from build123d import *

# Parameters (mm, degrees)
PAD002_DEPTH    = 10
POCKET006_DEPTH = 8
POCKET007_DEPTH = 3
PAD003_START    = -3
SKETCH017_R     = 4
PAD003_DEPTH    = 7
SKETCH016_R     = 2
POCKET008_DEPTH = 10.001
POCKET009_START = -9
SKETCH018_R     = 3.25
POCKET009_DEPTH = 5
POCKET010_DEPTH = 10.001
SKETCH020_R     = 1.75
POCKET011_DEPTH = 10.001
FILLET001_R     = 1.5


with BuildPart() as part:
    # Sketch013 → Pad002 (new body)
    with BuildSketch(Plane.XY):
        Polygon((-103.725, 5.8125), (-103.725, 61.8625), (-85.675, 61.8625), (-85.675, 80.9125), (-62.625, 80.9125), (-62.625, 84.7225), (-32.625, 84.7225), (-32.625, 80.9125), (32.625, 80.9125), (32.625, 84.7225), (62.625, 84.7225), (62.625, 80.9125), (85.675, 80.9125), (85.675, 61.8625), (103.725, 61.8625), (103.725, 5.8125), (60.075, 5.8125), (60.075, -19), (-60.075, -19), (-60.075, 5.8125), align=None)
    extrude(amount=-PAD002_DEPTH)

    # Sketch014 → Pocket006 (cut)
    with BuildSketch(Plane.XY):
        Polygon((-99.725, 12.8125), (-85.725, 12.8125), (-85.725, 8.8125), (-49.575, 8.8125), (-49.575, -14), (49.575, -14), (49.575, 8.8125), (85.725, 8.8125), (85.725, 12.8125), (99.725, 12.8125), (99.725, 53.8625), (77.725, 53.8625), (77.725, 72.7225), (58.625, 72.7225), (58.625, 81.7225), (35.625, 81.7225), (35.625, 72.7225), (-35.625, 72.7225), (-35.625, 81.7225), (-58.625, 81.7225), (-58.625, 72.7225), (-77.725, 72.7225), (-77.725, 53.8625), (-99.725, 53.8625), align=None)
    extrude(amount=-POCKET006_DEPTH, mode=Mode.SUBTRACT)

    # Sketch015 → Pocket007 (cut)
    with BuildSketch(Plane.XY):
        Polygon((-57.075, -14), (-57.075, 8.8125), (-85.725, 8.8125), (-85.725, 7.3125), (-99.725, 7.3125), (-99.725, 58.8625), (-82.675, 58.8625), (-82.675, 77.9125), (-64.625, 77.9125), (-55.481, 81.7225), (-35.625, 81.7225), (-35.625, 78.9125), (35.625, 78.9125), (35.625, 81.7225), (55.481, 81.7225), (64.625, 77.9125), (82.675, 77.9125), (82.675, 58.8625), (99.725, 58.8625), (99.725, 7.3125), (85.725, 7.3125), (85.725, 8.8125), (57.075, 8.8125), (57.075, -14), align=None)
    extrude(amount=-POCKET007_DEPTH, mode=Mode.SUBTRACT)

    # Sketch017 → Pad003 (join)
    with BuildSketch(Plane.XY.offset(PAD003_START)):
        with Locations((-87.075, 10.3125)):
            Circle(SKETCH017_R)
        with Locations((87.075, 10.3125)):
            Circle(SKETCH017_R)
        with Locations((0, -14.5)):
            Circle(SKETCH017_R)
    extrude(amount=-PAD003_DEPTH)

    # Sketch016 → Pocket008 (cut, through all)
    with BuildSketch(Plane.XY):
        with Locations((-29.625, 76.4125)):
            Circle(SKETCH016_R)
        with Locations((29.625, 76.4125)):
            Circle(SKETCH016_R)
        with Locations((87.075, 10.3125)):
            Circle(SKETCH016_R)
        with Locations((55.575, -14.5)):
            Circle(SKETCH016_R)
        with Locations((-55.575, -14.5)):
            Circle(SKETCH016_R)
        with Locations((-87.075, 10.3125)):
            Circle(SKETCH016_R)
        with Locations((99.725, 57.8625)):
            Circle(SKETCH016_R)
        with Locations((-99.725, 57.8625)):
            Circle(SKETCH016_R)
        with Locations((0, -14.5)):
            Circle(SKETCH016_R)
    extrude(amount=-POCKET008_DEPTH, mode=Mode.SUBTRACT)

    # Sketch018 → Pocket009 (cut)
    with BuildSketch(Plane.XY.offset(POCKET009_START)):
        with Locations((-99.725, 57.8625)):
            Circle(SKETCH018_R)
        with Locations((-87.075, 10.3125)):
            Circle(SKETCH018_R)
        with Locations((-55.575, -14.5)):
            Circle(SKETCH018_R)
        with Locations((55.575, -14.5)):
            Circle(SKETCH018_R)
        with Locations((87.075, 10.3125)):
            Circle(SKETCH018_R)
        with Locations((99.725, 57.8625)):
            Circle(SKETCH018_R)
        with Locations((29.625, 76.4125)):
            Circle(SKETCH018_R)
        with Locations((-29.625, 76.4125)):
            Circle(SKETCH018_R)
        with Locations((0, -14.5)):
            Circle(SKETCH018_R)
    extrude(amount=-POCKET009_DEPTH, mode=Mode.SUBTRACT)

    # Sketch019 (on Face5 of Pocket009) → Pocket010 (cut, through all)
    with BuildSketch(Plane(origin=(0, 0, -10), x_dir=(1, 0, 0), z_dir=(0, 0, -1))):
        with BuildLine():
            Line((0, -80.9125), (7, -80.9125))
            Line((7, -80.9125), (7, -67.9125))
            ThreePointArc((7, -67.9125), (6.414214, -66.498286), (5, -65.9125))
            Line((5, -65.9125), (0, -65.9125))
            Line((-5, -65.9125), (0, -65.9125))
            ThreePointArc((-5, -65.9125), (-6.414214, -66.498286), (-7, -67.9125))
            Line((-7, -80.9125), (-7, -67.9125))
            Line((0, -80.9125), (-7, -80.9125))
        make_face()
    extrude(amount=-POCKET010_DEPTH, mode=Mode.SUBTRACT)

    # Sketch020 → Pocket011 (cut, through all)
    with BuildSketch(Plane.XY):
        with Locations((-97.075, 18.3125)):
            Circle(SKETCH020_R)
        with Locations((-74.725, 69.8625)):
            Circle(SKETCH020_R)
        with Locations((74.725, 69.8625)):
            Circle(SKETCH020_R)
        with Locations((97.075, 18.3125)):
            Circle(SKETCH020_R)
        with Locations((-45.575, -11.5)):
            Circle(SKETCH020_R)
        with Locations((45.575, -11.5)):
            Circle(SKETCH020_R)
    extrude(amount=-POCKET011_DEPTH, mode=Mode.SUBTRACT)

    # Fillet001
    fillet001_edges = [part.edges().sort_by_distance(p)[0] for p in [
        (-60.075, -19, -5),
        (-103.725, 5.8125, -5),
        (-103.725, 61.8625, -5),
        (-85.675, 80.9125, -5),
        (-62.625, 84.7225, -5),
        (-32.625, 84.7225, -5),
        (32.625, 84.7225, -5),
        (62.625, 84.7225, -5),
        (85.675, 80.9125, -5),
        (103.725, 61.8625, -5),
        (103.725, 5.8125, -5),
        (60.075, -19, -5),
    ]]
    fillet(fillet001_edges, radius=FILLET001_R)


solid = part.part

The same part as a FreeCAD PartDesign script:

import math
import FreeCAD as App
import Part
import Sketcher


def edges_at(feature, points):
    """Names of the edges that pass closest to the given points."""
    edges = feature.Shape.Edges
    near = lambda p: min(range(len(edges)), key=lambda i: edges[i].distToShape(Part.Vertex(*p))[0])
    return sorted({f"Edge{near(p) + 1}" for p in points})

doc = App.newDocument("Part")
params = doc.addObject("Spreadsheet::Sheet", "Params")
for row, (alias, value) in enumerate([
    ("sketch1_width", "30 mm"),
    ("sketch1_width2", "43.65 mm"),
    ("sketch1_width3", "120.15 mm"),
    ("sketch1_width4", "18.05 mm"),
    ("sketch1_width5", "23.05 mm"),
    ("pad1_length", "10 mm"),
    ("sketch2_width", "14 mm"),
    ("sketch2_width2", "22 mm"),
    ("sketch2_width3", "23 mm"),
    ("sketch2_height", "4 mm"),
    ("sketch2_height2", "9 mm"),
    ("pocket1_length", "8 mm"),
    ("sketch3_width", "14 mm"),
    ("sketch3_height", "1.5 mm"),
    ("sketch3_width2", "114.15 mm"),
    ("sketch3_width3", "28.65 mm"),
    ("sketch3_width4", "17.05 mm"),
    ("pocket2_length", "3 mm"),
    ("sketch4_diameter", "8 mm"),
    ("pad2_length", "7 mm"),
    ("sketch5_diameter", "4 mm"),
    ("sketch6_diameter", "6.5 mm"),
    ("pocket4_length", "5 mm"),
    ("sketch7_radius", "1.999999 mm"),
    ("sketch7_width", "10 mm"),
    ("sketch7_height", "13 mm"),
    ("sketch8_diameter", "3.5 mm"),
    ("fillet_radius", "1.5 mm"),
], start=1):
    params.set(f"A{row}", alias)
    params.set(f"B{row}", "=" + value)
    params.setAlias(f"B{row}", alias)

body = doc.addObject("PartDesign::Body", "Body")

# Sketch on XY plane
sketch1 = body.newObject("Sketcher::SketchObject", "Sketch")
sketch1.AttachmentSupport = (doc.getObject("XY_Plane"), [""])
sketch1.MapMode = "FlatFace"
sketch1.addGeometry([
    Part.LineSegment(App.Vector(-103.7, 61.9, 0), App.Vector(-103.7, 5.8, 0)),  # 0
    Part.LineSegment(App.Vector(-103.7, 5.8, 0), App.Vector(-60.1, 5.8, 0)),  # 1
    Part.LineSegment(App.Vector(-60.1, 5.8, 0), App.Vector(-60.1, -19, 0)),  # 2
    Part.LineSegment(App.Vector(-60.1, -19, 0), App.Vector(60.1, -19, 0)),  # 3
    Part.LineSegment(App.Vector(60.1, -19, 0), App.Vector(60.1, 5.8, 0)),  # 4
    Part.LineSegment(App.Vector(60.1, 5.8, 0), App.Vector(103.7, 5.8, 0)),  # 5
    Part.LineSegment(App.Vector(103.7, 5.8, 0), App.Vector(103.7, 61.9, 0)),  # 6
    Part.LineSegment(App.Vector(103.7, 61.9, 0), App.Vector(85.7, 61.9, 0)),  # 7
    Part.LineSegment(App.Vector(85.7, 61.9, 0), App.Vector(85.7, 80.9, 0)),  # 8
    Part.LineSegment(App.Vector(85.7, 80.9, 0), App.Vector(62.6, 80.9, 0)),  # 9
    Part.LineSegment(App.Vector(62.6, 80.9, 0), App.Vector(62.6, 84.7, 0)),  # 10
    Part.LineSegment(App.Vector(62.6, 84.7, 0), App.Vector(32.6, 84.7, 0)),  # 11
    Part.LineSegment(App.Vector(32.6, 84.7, 0), App.Vector(32.6, 80.9, 0)),  # 12
    Part.LineSegment(App.Vector(32.6, 80.9, 0), App.Vector(-32.6, 80.9, 0)),  # 13
    Part.LineSegment(App.Vector(-32.6, 80.9, 0), App.Vector(-32.6, 84.7, 0)),  # 14
    Part.LineSegment(App.Vector(-32.6, 84.7, 0), App.Vector(-62.6, 84.7, 0)),  # 15
    Part.LineSegment(App.Vector(-62.6, 84.7, 0), App.Vector(-62.6, 80.9, 0)),  # 16
    Part.LineSegment(App.Vector(-62.6, 80.9, 0), App.Vector(-85.7, 80.9, 0)),  # 17
    Part.LineSegment(App.Vector(-85.7, 80.9, 0), App.Vector(-85.7, 61.9, 0)),  # 18
    Part.LineSegment(App.Vector(-85.7, 61.9, 0), App.Vector(-103.7, 61.9, 0)),  # 19
], False)
sketch1.addConstraint([
    Sketcher.Constraint("Coincident", 0, 2, 1, 1),
    Sketcher.Constraint("Coincident", 1, 2, 2, 1),
    Sketcher.Constraint("Coincident", 2, 2, 3, 1),
    Sketcher.Constraint("Coincident", 3, 2, 4, 1),
    Sketcher.Constraint("Coincident", 4, 2, 5, 1),
    Sketcher.Constraint("Coincident", 5, 2, 6, 1),
    Sketcher.Constraint("Coincident", 6, 2, 7, 1),
    Sketcher.Constraint("Coincident", 7, 2, 8, 1),
    Sketcher.Constraint("Coincident", 8, 2, 9, 1),
    Sketcher.Constraint("Coincident", 9, 2, 10, 1),
    Sketcher.Constraint("Coincident", 10, 2, 11, 1),
    Sketcher.Constraint("Coincident", 11, 2, 12, 1),
    Sketcher.Constraint("Coincident", 12, 2, 13, 1),
    Sketcher.Constraint("Coincident", 13, 2, 14, 1),
    Sketcher.Constraint("Coincident", 14, 2, 15, 1),
    Sketcher.Constraint("Coincident", 15, 2, 16, 1),
    Sketcher.Constraint("Coincident", 16, 2, 17, 1),
    Sketcher.Constraint("Coincident", 17, 2, 18, 1),
    Sketcher.Constraint("Coincident", 18, 2, 19, 1),
    Sketcher.Constraint("Coincident", 19, 2, 0, 1),
    Sketcher.Constraint("Vertical", 0),
    Sketcher.Constraint("Horizontal", 1),
    Sketcher.Constraint("Vertical", 2),
    Sketcher.Constraint("Horizontal", 3),
    Sketcher.Constraint("Vertical", 4),
    Sketcher.Constraint("Horizontal", 5),
    Sketcher.Constraint("Vertical", 6),
    Sketcher.Constraint("Horizontal", 7),
    Sketcher.Constraint("Vertical", 8),
    Sketcher.Constraint("Horizontal", 9),
    Sketcher.Constraint("Vertical", 10),
    Sketcher.Constraint("Horizontal", 11),
    Sketcher.Constraint("Vertical", 12),
    Sketcher.Constraint("Horizontal", 13),
    Sketcher.Constraint("Vertical", 14),
    Sketcher.Constraint("Horizontal", 15),
    Sketcher.Constraint("Vertical", 16),
    Sketcher.Constraint("Horizontal", 17),
    Sketcher.Constraint("Vertical", 18),
    Sketcher.Constraint("Horizontal", 19),
    Sketcher.Constraint("Symmetric", 1, 2, 4, 2, -2),
    Sketcher.Constraint("Symmetric", 11, 2, 14, 2, -2),
    Sketcher.Constraint("Symmetric", 9, 2, 16, 2, -2),
    Sketcher.Constraint("Symmetric", 7, 2, 18, 2, -2),
    Sketcher.Constraint("Horizontal", 9, 2, 12, 2),
    Sketcher.Constraint("Equal", 1, 5),
    Sketcher.Constraint("DistanceX", 11, 2, 11, 1, 30.0),
    Sketcher.Constraint("DistanceY", 2, 2, -1, 1, 19.0),
    Sketcher.Constraint("DistanceX", 1, 1, 1, 2, 43.65),
    Sketcher.Constraint("DistanceX", 3, 1, 3, 2, 120.15),
    Sketcher.Constraint("DistanceX", 7, 2, 7, 1, 18.05),
    Sketcher.Constraint("DistanceX", 9, 2, 9, 1, 23.05),
    Sketcher.Constraint("DistanceY", 0, 2, 0, 1, 56.05),
    Sketcher.Constraint("DistanceY", 8, 1, 8, 2, 19.05),
    Sketcher.Constraint("DistanceY", 10, 1, 10, 2, 3.81),
    Sketcher.Constraint("DistanceY", 2, 2, 2, 1, 24.8125),
])
sketch1.setExpression("Constraints[46]", "Params.sketch1_width")
sketch1.setExpression("Constraints[48]", "Params.sketch1_width2")
sketch1.setExpression("Constraints[49]", "Params.sketch1_width3")
sketch1.setExpression("Constraints[50]", "Params.sketch1_width4")
sketch1.setExpression("Constraints[51]", "Params.sketch1_width5")
pad1 = body.newObject("PartDesign::Pad", "Pad")
pad1.Profile = sketch1
pad1.setExpression("Length", "Params.pad1_length")
pad1.Reversed = True

# Sketch on XY plane
sketch2 = body.newObject("Sketcher::SketchObject", "Sketch001")
sketch2.AttachmentSupport = (doc.getObject("XY_Plane"), [""])
sketch2.MapMode = "FlatFace"
sketch2.addGeometry([
    Part.LineSegment(App.Vector(-99.7, 12.8, 0), App.Vector(-85.7, 12.8, 0)),  # 0
    Part.LineSegment(App.Vector(-85.7, 12.8, 0), App.Vector(-85.7, 8.8, 0)),  # 1
    Part.LineSegment(App.Vector(-85.7, 8.8, 0), App.Vector(-49.6, 8.8, 0)),  # 2
    Part.LineSegment(App.Vector(-49.6, 8.8, 0), App.Vector(-49.6, -14, 0)),  # 3
    Part.LineSegment(App.Vector(-49.6, -14, 0), App.Vector(49.6, -14, 0)),  # 4
    Part.LineSegment(App.Vector(49.6, -14, 0), App.Vector(49.6, 8.8, 0)),  # 5
    Part.LineSegment(App.Vector(49.6, 8.8, 0), App.Vector(85.7, 8.8, 0)),  # 6
    Part.LineSegment(App.Vector(85.7, 8.8, 0), App.Vector(85.7, 12.8, 0)),  # 7
    Part.LineSegment(App.Vector(85.7, 12.8, 0), App.Vector(99.7, 12.8, 0)),  # 8
    Part.LineSegment(App.Vector(99.7, 12.8, 0), App.Vector(99.7, 53.9, 0)),  # 9
    Part.LineSegment(App.Vector(99.7, 53.9, 0), App.Vector(77.7, 53.9, 0)),  # 10
    Part.LineSegment(App.Vector(77.7, 53.9, 0), App.Vector(77.7, 72.7, 0)),  # 11
    Part.LineSegment(App.Vector(77.7, 72.7, 0), App.Vector(58.6, 72.7, 0)),  # 12
    Part.LineSegment(App.Vector(58.6, 72.7, 0), App.Vector(58.6, 81.7, 0)),  # 13
    Part.LineSegment(App.Vector(58.6, 81.7, 0), App.Vector(35.6, 81.7, 0)),  # 14
    Part.LineSegment(App.Vector(35.6, 81.7, 0), App.Vector(35.6, 72.7, 0)),  # 15
    Part.LineSegment(App.Vector(35.6, 72.7, 0), App.Vector(-35.6, 72.7, 0)),  # 16
    Part.LineSegment(App.Vector(-35.6, 72.7, 0), App.Vector(-35.6, 81.7, 0)),  # 17
    Part.LineSegment(App.Vector(-35.6, 81.7, 0), App.Vector(-58.6, 81.7, 0)),  # 18
    Part.LineSegment(App.Vector(-58.6, 81.7, 0), App.Vector(-58.6, 72.7, 0)),  # 19
    Part.LineSegment(App.Vector(-58.6, 72.7, 0), App.Vector(-77.7, 72.7, 0)),  # 20
    Part.LineSegment(App.Vector(-77.7, 72.7, 0), App.Vector(-77.7, 53.9, 0)),  # 21
    Part.LineSegment(App.Vector(-77.7, 53.9, 0), App.Vector(-99.7, 53.9, 0)),  # 22
    Part.LineSegment(App.Vector(-99.7, 53.9, 0), App.Vector(-99.7, 12.8, 0)),  # 23
], False)
sketch2.addConstraint([
    Sketcher.Constraint("Coincident", 0, 2, 1, 1),
    Sketcher.Constraint("Coincident", 1, 2, 2, 1),
    Sketcher.Constraint("Coincident", 2, 2, 3, 1),
    Sketcher.Constraint("Coincident", 3, 2, 4, 1),
    Sketcher.Constraint("Coincident", 4, 2, 5, 1),
    Sketcher.Constraint("Coincident", 5, 2, 6, 1),
    Sketcher.Constraint("Coincident", 6, 2, 7, 1),
    Sketcher.Constraint("Coincident", 7, 2, 8, 1),
    Sketcher.Constraint("Coincident", 8, 2, 9, 1),
    Sketcher.Constraint("Coincident", 9, 2, 10, 1),
    Sketcher.Constraint("Coincident", 10, 2, 11, 1),
    Sketcher.Constraint("Coincident", 11, 2, 12, 1),
    Sketcher.Constraint("Coincident", 12, 2, 13, 1),
    Sketcher.Constraint("Coincident", 13, 2, 14, 1),
    Sketcher.Constraint("Coincident", 14, 2, 15, 1),
    Sketcher.Constraint("Coincident", 15, 2, 16, 1),
    Sketcher.Constraint("Coincident", 16, 2, 17, 1),
    Sketcher.Constraint("Coincident", 17, 2, 18, 1),
    Sketcher.Constraint("Coincident", 18, 2, 19, 1),
    Sketcher.Constraint("Coincident", 19, 2, 20, 1),
    Sketcher.Constraint("Coincident", 20, 2, 21, 1),
    Sketcher.Constraint("Coincident", 21, 2, 22, 1),
    Sketcher.Constraint("Coincident", 22, 2, 23, 1),
    Sketcher.Constraint("Coincident", 23, 2, 0, 1),
    Sketcher.Constraint("Horizontal", 0),
    Sketcher.Constraint("Vertical", 1),
    Sketcher.Constraint("Horizontal", 2),
    Sketcher.Constraint("Vertical", 3),
    Sketcher.Constraint("Horizontal", 4),
    Sketcher.Constraint("Vertical", 5),
    Sketcher.Constraint("Horizontal", 6),
    Sketcher.Constraint("Vertical", 7),
    Sketcher.Constraint("Horizontal", 8),
    Sketcher.Constraint("Vertical", 9),
    Sketcher.Constraint("Horizontal", 10),
    Sketcher.Constraint("Vertical", 11),
    Sketcher.Constraint("Horizontal", 12),
    Sketcher.Constraint("Vertical", 13),
    Sketcher.Constraint("Horizontal", 14),
    Sketcher.Constraint("Vertical", 15),
    Sketcher.Constraint("Horizontal", 16),
    Sketcher.Constraint("Vertical", 17),
    Sketcher.Constraint("Horizontal", 18),
    Sketcher.Constraint("Vertical", 19),
    Sketcher.Constraint("Horizontal", 20),
    Sketcher.Constraint("Vertical", 21),
    Sketcher.Constraint("Horizontal", 22),
    Sketcher.Constraint("Vertical", 23),
    Sketcher.Constraint("Symmetric", 2, 2, 5, 2, -2),
    Sketcher.Constraint("Symmetric", 0, 2, 7, 2, -2),
    Sketcher.Constraint("Symmetric", 14, 2, 17, 2, -2),
    Sketcher.Constraint("Symmetric", 12, 2, 19, 2, -2),
    Sketcher.Constraint("Symmetric", 10, 2, 21, 2, -2),
    Sketcher.Constraint("Horizontal", 12, 2, 15, 2),
    Sketcher.Constraint("Equal", 0, 8),
    Sketcher.Constraint("DistanceX", 0, 1, 0, 2, 14.0),
    Sketcher.Constraint("DistanceX", 10, 2, 10, 1, 22.0),
    Sketcher.Constraint("DistanceX", 14, 2, 14, 1, 23.0),
    Sketcher.Constraint("DistanceY", 1, 2, 1, 1, 4.0),
    Sketcher.Constraint("DistanceY", 13, 1, 13, 2, 9.0),
    Sketcher.Constraint("DistanceX", 12, 2, 12, 1, 19.1),
    Sketcher.Constraint("DistanceY", 3, 2, -1, 1, 14.0),
    Sketcher.Constraint("DistanceX", 2, 1, 2, 2, 36.15),
    Sketcher.Constraint("DistanceX", 4, 1, 4, 2, 99.15),
    Sketcher.Constraint("DistanceY", 9, 1, 9, 2, 41.05),
    Sketcher.Constraint("DistanceY", 11, 1, 11, 2, 18.86),
    Sketcher.Constraint("DistanceY", 3, 2, 3, 1, 22.8125),
])
sketch2.setExpression("Constraints[55]", "Params.sketch2_width")
sketch2.setExpression("Constraints[56]", "Params.sketch2_width2")
sketch2.setExpression("Constraints[57]", "Params.sketch2_width3")
sketch2.setExpression("Constraints[58]", "Params.sketch2_height")
sketch2.setExpression("Constraints[59]", "Params.sketch2_height2")
pocket1 = body.newObject("PartDesign::Pocket", "Pocket")
pocket1.Profile = sketch2
pocket1.setExpression("Length", "Params.pocket1_length")

# Sketch on XY plane
sketch3 = body.newObject("Sketcher::SketchObject", "Sketch002")
sketch3.AttachmentSupport = (doc.getObject("XY_Plane"), [""])
sketch3.MapMode = "FlatFace"
sketch3.addGeometry([
    Part.LineSegment(App.Vector(-57.1, 8.8, 0), App.Vector(-57.1, -14, 0)),  # 0
    Part.LineSegment(App.Vector(-57.1, -14, 0), App.Vector(57.1, -14, 0)),  # 1
    Part.LineSegment(App.Vector(57.1, -14, 0), App.Vector(57.1, 8.8, 0)),  # 2
    Part.LineSegment(App.Vector(57.1, 8.8, 0), App.Vector(85.7, 8.8, 0)),  # 3
    Part.LineSegment(App.Vector(85.7, 8.8, 0), App.Vector(85.7, 7.3, 0)),  # 4
    Part.LineSegment(App.Vector(85.7, 7.3, 0), App.Vector(99.7, 7.3, 0)),  # 5
    Part.LineSegment(App.Vector(99.7, 7.3, 0), App.Vector(99.7, 58.9, 0)),  # 6
    Part.LineSegment(App.Vector(99.7, 58.9, 0), App.Vector(82.7, 58.9, 0)),  # 7
    Part.LineSegment(App.Vector(82.7, 58.9, 0), App.Vector(82.7, 77.9, 0)),  # 8
    Part.LineSegment(App.Vector(82.7, 77.9, 0), App.Vector(64.6, 77.9, 0)),  # 9
    Part.LineSegment(App.Vector(64.6, 77.9, 0), App.Vector(55.5, 81.7, 0)),  # 10
    Part.LineSegment(App.Vector(55.5, 81.7, 0), App.Vector(35.6, 81.7, 0)),  # 11
    Part.LineSegment(App.Vector(35.6, 81.7, 0), App.Vector(35.6, 78.9, 0)),  # 12
    Part.LineSegment(App.Vector(35.6, 78.9, 0), App.Vector(-35.6, 78.9, 0)),  # 13
    Part.LineSegment(App.Vector(-35.6, 78.9, 0), App.Vector(-35.6, 81.7, 0)),  # 14
    Part.LineSegment(App.Vector(-35.6, 81.7, 0), App.Vector(-55.5, 81.7, 0)),  # 15
    Part.LineSegment(App.Vector(-55.5, 81.7, 0), App.Vector(-64.6, 77.9, 0)),  # 16
    Part.LineSegment(App.Vector(-64.6, 77.9, 0), App.Vector(-82.7, 77.9, 0)),  # 17
    Part.LineSegment(App.Vector(-82.7, 77.9, 0), App.Vector(-82.7, 58.9, 0)),  # 18
    Part.LineSegment(App.Vector(-82.7, 58.9, 0), App.Vector(-99.7, 58.9, 0)),  # 19
    Part.LineSegment(App.Vector(-99.7, 58.9, 0), App.Vector(-99.7, 7.3, 0)),  # 20
    Part.LineSegment(App.Vector(-99.7, 7.3, 0), App.Vector(-85.7, 7.3, 0)),  # 21
    Part.LineSegment(App.Vector(-85.7, 7.3, 0), App.Vector(-85.7, 8.8, 0)),  # 22
    Part.LineSegment(App.Vector(-85.7, 8.8, 0), App.Vector(-57.1, 8.8, 0)),  # 23
], False)
sketch3.addConstraint([
    Sketcher.Constraint("Coincident", 0, 2, 1, 1),
    Sketcher.Constraint("Coincident", 1, 2, 2, 1),
    Sketcher.Constraint("Coincident", 2, 2, 3, 1),
    Sketcher.Constraint("Coincident", 3, 2, 4, 1),
    Sketcher.Constraint("Coincident", 4, 2, 5, 1),
    Sketcher.Constraint("Coincident", 5, 2, 6, 1),
    Sketcher.Constraint("Coincident", 6, 2, 7, 1),
    Sketcher.Constraint("Coincident", 7, 2, 8, 1),
    Sketcher.Constraint("Coincident", 8, 2, 9, 1),
    Sketcher.Constraint("Coincident", 9, 2, 10, 1),
    Sketcher.Constraint("Coincident", 10, 2, 11, 1),
    Sketcher.Constraint("Coincident", 11, 2, 12, 1),
    Sketcher.Constraint("Coincident", 12, 2, 13, 1),
    Sketcher.Constraint("Coincident", 13, 2, 14, 1),
    Sketcher.Constraint("Coincident", 14, 2, 15, 1),
    Sketcher.Constraint("Coincident", 15, 2, 16, 1),
    Sketcher.Constraint("Coincident", 16, 2, 17, 1),
    Sketcher.Constraint("Coincident", 17, 2, 18, 1),
    Sketcher.Constraint("Coincident", 18, 2, 19, 1),
    Sketcher.Constraint("Coincident", 19, 2, 20, 1),
    Sketcher.Constraint("Coincident", 20, 2, 21, 1),
    Sketcher.Constraint("Coincident", 21, 2, 22, 1),
    Sketcher.Constraint("Coincident", 22, 2, 23, 1),
    Sketcher.Constraint("Coincident", 23, 2, 0, 1),
    Sketcher.Constraint("Vertical", 0),
    Sketcher.Constraint("Horizontal", 1),
    Sketcher.Constraint("Vertical", 2),
    Sketcher.Constraint("Horizontal", 3),
    Sketcher.Constraint("Vertical", 4),
    Sketcher.Constraint("Horizontal", 5),
    Sketcher.Constraint("Vertical", 6),
    Sketcher.Constraint("Horizontal", 7),
    Sketcher.Constraint("Vertical", 8),
    Sketcher.Constraint("Horizontal", 9),
    Sketcher.Constraint("Horizontal", 11),
    Sketcher.Constraint("Vertical", 12),
    Sketcher.Constraint("Horizontal", 13),
    Sketcher.Constraint("Vertical", 14),
    Sketcher.Constraint("Horizontal", 15),
    Sketcher.Constraint("Horizontal", 17),
    Sketcher.Constraint("Vertical", 18),
    Sketcher.Constraint("Horizontal", 19),
    Sketcher.Constraint("Vertical", 20),
    Sketcher.Constraint("Horizontal", 21),
    Sketcher.Constraint("Vertical", 22),
    Sketcher.Constraint("Horizontal", 23),
    Sketcher.Constraint("Symmetric", 11, 2, 14, 2, -2),
    Sketcher.Constraint("Symmetric", 9, 2, 16, 2, -2),
    Sketcher.Constraint("Symmetric", 7, 2, 18, 2, -2),
    Sketcher.Constraint("Symmetric", 5, 2, 20, 2, -2),
    Sketcher.Constraint("Symmetric", 3, 2, 22, 2, -2),
    Sketcher.Constraint("Equal", 11, 15),
    Sketcher.Constraint("Equal", 3, 23),
    Sketcher.Constraint("DistanceX", 5, 1, 5, 2, 14.0),
    Sketcher.Constraint("DistanceY", 4, 2, 4, 1, 1.5),
    Sketcher.Constraint("DistanceY", 0, 2, -1, 1, 14.0),
    Sketcher.Constraint("DistanceX", 11, 2, 9, 2, 29.0),
    Sketcher.Constraint("DistanceY", 9, 2, 12, 2, 1.0),
    Sketcher.Constraint("DistanceX", 1, 1, 1, 2, 114.15),
    Sketcher.Constraint("DistanceX", 3, 1, 3, 2, 28.65),
    Sketcher.Constraint("DistanceX", 7, 2, 7, 1, 17.05),
    Sketcher.Constraint("DistanceX", 9, 2, 9, 1, 18.05),
    Sketcher.Constraint("DistanceY", 6, 1, 6, 2, 51.55),
    Sketcher.Constraint("DistanceY", 8, 1, 8, 2, 19.05),
    Sketcher.Constraint("DistanceY", 12, 2, 12, 1, 2.81),
    Sketcher.Constraint("DistanceX", 11, 2, 11, 1, 19.856),
    Sketcher.Constraint("DistanceY", 0, 2, 0, 1, 22.8125),
])
sketch3.setExpression("Constraints[53]", "Params.sketch3_width")
sketch3.setExpression("Constraints[54]", "Params.sketch3_height")
sketch3.setExpression("Constraints[58]", "Params.sketch3_width2")
sketch3.setExpression("Constraints[59]", "Params.sketch3_width3")
sketch3.setExpression("Constraints[60]", "Params.sketch3_width4")
pocket2 = body.newObject("PartDesign::Pocket", "Pocket001")
pocket2.Profile = sketch3
pocket2.setExpression("Length", "Params.pocket2_length")

# Sketch on XY plane
sketch4 = body.newObject("Sketcher::SketchObject", "Sketch003")
sketch4.AttachmentSupport = (doc.getObject("XY_Plane"), [""])
sketch4.MapMode = "FlatFace"
sketch4.AttachmentOffset = App.Placement(App.Vector(0, 0, -3), App.Rotation())
sketch4.addGeometry([
    Part.Circle(App.Vector(-87.1, 10.3, 0), App.Vector(0, 0, 1), 4),
    Part.Circle(App.Vector(87.1, 10.3, 0), App.Vector(0, 0, 1), 4),
    Part.Circle(App.Vector(0, -14.5, 0), App.Vector(0, 0, 1), 4),
], False)
sketch4.addConstraint([
    Sketcher.Constraint("Equal", 0, 1),
    Sketcher.Constraint("Equal", 1, 2),
    Sketcher.Constraint("Symmetric", 0, 3, 1, 3, -2),
    Sketcher.Constraint("PointOnObject", 2, 3, -2),
    Sketcher.Constraint("Diameter", 0, 8.0),
    Sketcher.Constraint("DistanceY", 2, 3, -1, 1, 14.5),
    Sketcher.Constraint("DistanceX", 0, 3, 1, 3, 174.15),
    Sketcher.Constraint("DistanceY", -1, 1, 0, 3, 10.3125),
])
sketch4.setExpression("Constraints[4]", "Params.sketch4_diameter")
pad2 = body.newObject("PartDesign::Pad", "Pad001")
pad2.Profile = sketch4
pad2.setExpression("Length", "Params.pad2_length")
pad2.Reversed = True

# Sketch on XY plane
sketch5 = body.newObject("Sketcher::SketchObject", "Sketch004")
sketch5.AttachmentSupport = (doc.getObject("XY_Plane"), [""])
sketch5.MapMode = "FlatFace"
sketch5.addGeometry([
    Part.Circle(App.Vector(-29.6, 76.4, 0), App.Vector(0, 0, 1), 2),  # 0
    Part.Circle(App.Vector(29.6, 76.4, 0), App.Vector(0, 0, 1), 2),  # 1
    Part.Circle(App.Vector(87.1, 10.3, 0), App.Vector(0, 0, 1), 2),  # 2
    Part.Circle(App.Vector(55.6, -14.5, 0), App.Vector(0, 0, 1), 2),  # 3
    Part.Circle(App.Vector(-55.6, -14.5, 0), App.Vector(0, 0, 1), 2),  # 4
    Part.Circle(App.Vector(-87.1, 10.3, 0), App.Vector(0, 0, 1), 2),  # 5
    Part.Circle(App.Vector(99.7, 57.9, 0), App.Vector(0, 0, 1), 2),  # 6
    Part.Circle(App.Vector(-99.7, 57.9, 0), App.Vector(0, 0, 1), 2),  # 7
    Part.Circle(App.Vector(0, -14.5, 0), App.Vector(0, 0, 1), 2),  # 8
], False)
sketch5.addConstraint([
    Sketcher.Constraint("Equal", 0, 1),
    Sketcher.Constraint("Equal", 1, 2),
    Sketcher.Constraint("Equal", 2, 3),
    Sketcher.Constraint("Equal", 3, 4),
    Sketcher.Constraint("Equal", 4, 5),
    Sketcher.Constraint("Equal", 5, 6),
    Sketcher.Constraint("Equal", 6, 7),
    Sketcher.Constraint("Equal", 7, 8),
    Sketcher.Constraint("Symmetric", 0, 3, 1, 3, -2),
    Sketcher.Constraint("Symmetric", 3, 3, 4, 3, -2),
    Sketcher.Constraint("Symmetric", 2, 3, 5, 3, -2),
    Sketcher.Constraint("Symmetric", 6, 3, 7, 3, -2),
    Sketcher.Constraint("PointOnObject", 8, 3, -2),
    Sketcher.Constraint("Horizontal", 4, 3, 8, 3),
    Sketcher.Constraint("Diameter", 0, 4.0),
    Sketcher.Constraint("DistanceY", 3, 3, -1, 1, 14.5),
    Sketcher.Constraint("DistanceY", 2, 3, 1, 3, 66.1),
    Sketcher.Constraint("DistanceX", 0, 3, 2, 3, 116.7),
    Sketcher.Constraint("DistanceX", 3, 3, 2, 3, 31.5),
    Sketcher.Constraint("DistanceX", 1, 3, 6, 3, 70.1),
    Sketcher.Constraint("DistanceX", 0, 3, 1, 3, 59.25),
    Sketcher.Constraint("DistanceY", 2, 3, 6, 3, 47.55),
    Sketcher.Constraint("DistanceY", -1, 1, 0, 3, 76.4125),
])
sketch5.setExpression("Constraints[14]", "Params.sketch5_diameter")
pocket3 = body.newObject("PartDesign::Pocket", "Pocket002")
pocket3.Profile = sketch5
pocket3.Type = "ThroughAll"

# Sketch on XY plane
sketch6 = body.newObject("Sketcher::SketchObject", "Sketch005")
sketch6.AttachmentSupport = (doc.getObject("XY_Plane"), [""])
sketch6.MapMode = "FlatFace"
sketch6.AttachmentOffset = App.Placement(App.Vector(0, 0, -9), App.Rotation())
sketch6.addGeometry([
    Part.Circle(App.Vector(-99.7, 57.9, 0), App.Vector(0, 0, 1), 3.2),  # 0
    Part.Circle(App.Vector(-87.1, 10.3, 0), App.Vector(0, 0, 1), 3.2),  # 1
    Part.Circle(App.Vector(-55.6, -14.5, 0), App.Vector(0, 0, 1), 3.2),  # 2
    Part.Circle(App.Vector(55.6, -14.5, 0), App.Vector(0, 0, 1), 3.2),  # 3
    Part.Circle(App.Vector(87.1, 10.3, 0), App.Vector(0, 0, 1), 3.2),  # 4
    Part.Circle(App.Vector(99.7, 57.9, 0), App.Vector(0, 0, 1), 3.2),  # 5
    Part.Circle(App.Vector(29.6, 76.4, 0), App.Vector(0, 0, 1), 3.2),  # 6
    Part.Circle(App.Vector(-29.6, 76.4, 0), App.Vector(0, 0, 1), 3.2),  # 7
    Part.Circle(App.Vector(0, -14.5, 0), App.Vector(0, 0, 1), 3.2),  # 8
], False)
sketch6.addConstraint([
    Sketcher.Constraint("Equal", 0, 1),
    Sketcher.Constraint("Equal", 1, 2),
    Sketcher.Constraint("Equal", 2, 3),
    Sketcher.Constraint("Equal", 3, 4),
    Sketcher.Constraint("Equal", 4, 5),
    Sketcher.Constraint("Equal", 5, 6),
    Sketcher.Constraint("Equal", 6, 7),
    Sketcher.Constraint("Equal", 7, 8),
    Sketcher.Constraint("Symmetric", 2, 3, 3, 3, -2),
    Sketcher.Constraint("Symmetric", 1, 3, 4, 3, -2),
    Sketcher.Constraint("Symmetric", 0, 3, 5, 3, -2),
    Sketcher.Constraint("Symmetric", 6, 3, 7, 3, -2),
    Sketcher.Constraint("PointOnObject", 8, 3, -2),
    Sketcher.Constraint("Horizontal", 3, 3, 8, 3),
    Sketcher.Constraint("Diameter", 0, 6.5),
    Sketcher.Constraint("DistanceY", 2, 3, -1, 1, 14.5),
    Sketcher.Constraint("DistanceX", 1, 3, 2, 3, 31.5),
    Sketcher.Constraint("DistanceX", 0, 3, 3, 3, 155.3),
    Sketcher.Constraint("DistanceX", 6, 3, 5, 3, 70.1),
    Sketcher.Constraint("DistanceY", 4, 3, 6, 3, 66.1),
    Sketcher.Constraint("DistanceX", 0, 3, 1, 3, 12.65),
    Sketcher.Constraint("DistanceY", 1, 3, 0, 3, 47.55),
    Sketcher.Constraint("DistanceY", -1, 1, 0, 3, 57.8625),
])
sketch6.setExpression("Constraints[14]", "Params.sketch6_diameter")
pocket4 = body.newObject("PartDesign::Pocket", "Pocket003")
pocket4.Profile = sketch6
pocket4.setExpression("Length", "Params.pocket4_length")

# Sketch on XY plane
sketch7 = body.newObject("Sketcher::SketchObject", "Sketch006")
sketch7.AttachmentSupport = (doc.getObject("XY_Plane"), [""])
sketch7.MapMode = "FlatFace"
sketch7.AttachmentOffset = App.Placement(App.Vector(0, 0, -10), App.Rotation())
sketch7.addGeometry([
    Part.LineSegment(App.Vector(7, 80.9, 0), App.Vector(7, 67.9, 0)),  # 0
    Part.ArcOfCircle(Part.Circle(App.Vector(5, 67.9, 0), App.Vector(0, 0, 1), 2), math.radians(-90), math.radians(0)),  # 1
    Part.LineSegment(App.Vector(5, 65.9, 0), App.Vector(-5, 65.9, 0)),  # 2
    Part.ArcOfCircle(Part.Circle(App.Vector(-5, 67.9, 0), App.Vector(0, 0, 1), 2), math.radians(180), math.radians(270)),  # 3
    Part.LineSegment(App.Vector(-7, 67.9, 0), App.Vector(-7, 80.9, 0)),  # 4
    Part.LineSegment(App.Vector(-7, 80.9, 0), App.Vector(7, 80.9, 0)),  # 5
], False)
sketch7.addConstraint([
    Sketcher.Constraint("Tangent", 0, 2, 1, 2),
    Sketcher.Constraint("Tangent", 1, 1, 2, 1),
    Sketcher.Constraint("Tangent", 2, 2, 3, 2),
    Sketcher.Constraint("Tangent", 3, 1, 4, 1),
    Sketcher.Constraint("Coincident", 4, 2, 5, 1),
    Sketcher.Constraint("Coincident", 5, 2, 0, 1),
    Sketcher.Constraint("Vertical", 0),
    Sketcher.Constraint("Horizontal", 2),
    Sketcher.Constraint("Vertical", 4),
    Sketcher.Constraint("Horizontal", 5),
    Sketcher.Constraint("Equal", 1, 3),
    Sketcher.Constraint("Radius", 1, 1.999999),
    Sketcher.Constraint("DistanceX", 2, 2, 2, 1, 10.0),
    Sketcher.Constraint("DistanceY", 0, 2, 0, 1, 13.0),
    Sketcher.Constraint("DistanceX", -1, 1, 1, 3, 5.000001),
    Sketcher.Constraint("DistanceY", -1, 1, 1, 3, 67.912499),
])
sketch7.setExpression("Constraints[11]", "Params.sketch7_radius")
sketch7.setExpression("Constraints[12]", "Params.sketch7_width")
sketch7.setExpression("Constraints[13]", "Params.sketch7_height")
pocket5 = body.newObject("PartDesign::Pocket", "Pocket004")
pocket5.Profile = sketch7
pocket5.Type = "ThroughAll"
pocket5.Reversed = True

# Sketch on XY plane
sketch8 = body.newObject("Sketcher::SketchObject", "Sketch007")
sketch8.AttachmentSupport = (doc.getObject("XY_Plane"), [""])
sketch8.MapMode = "FlatFace"
sketch8.addGeometry([
    Part.Circle(App.Vector(-97.1, 18.3, 0), App.Vector(0, 0, 1), 1.8),  # 0
    Part.Circle(App.Vector(-74.7, 69.9, 0), App.Vector(0, 0, 1), 1.8),  # 1
    Part.Circle(App.Vector(74.7, 69.9, 0), App.Vector(0, 0, 1), 1.8),  # 2
    Part.Circle(App.Vector(97.1, 18.3, 0), App.Vector(0, 0, 1), 1.8),  # 3
    Part.Circle(App.Vector(-45.6, -11.5, 0), App.Vector(0, 0, 1), 1.8),  # 4
    Part.Circle(App.Vector(45.6, -11.5, 0), App.Vector(0, 0, 1), 1.8),  # 5
], False)
sketch8.addConstraint([
    Sketcher.Constraint("Equal", 0, 1),
    Sketcher.Constraint("Equal", 1, 2),
    Sketcher.Constraint("Equal", 2, 3),
    Sketcher.Constraint("Equal", 3, 4),
    Sketcher.Constraint("Equal", 4, 5),
    Sketcher.Constraint("Symmetric", 1, 3, 2, 3, -2),
    Sketcher.Constraint("Symmetric", 0, 3, 3, 3, -2),
    Sketcher.Constraint("Symmetric", 4, 3, 5, 3, -2),
    Sketcher.Constraint("Diameter", 0, 3.5),
    Sketcher.Constraint("DistanceY", 4, 3, -1, 1, 11.5),
    Sketcher.Constraint("DistanceX", 0, 3, 2, 3, 171.8),
    Sketcher.Constraint("DistanceX", 0, 3, 4, 3, 51.5),
    Sketcher.Constraint("DistanceX", 0, 3, 1, 3, 22.35),
    Sketcher.Constraint("DistanceY", 0, 3, 1, 3, 51.55),
    Sketcher.Constraint("DistanceY", -1, 1, 0, 3, 18.3125),
])
sketch8.setExpression("Constraints[8]", "Params.sketch8_diameter")
pocket6 = body.newObject("PartDesign::Pocket", "Pocket005")
pocket6.Profile = sketch8
pocket6.Type = "ThroughAll"
doc.recompute()

fillet = body.newObject("PartDesign::Fillet", "Fillet")
fillet.Base = (pocket6, edges_at(pocket6, [
    (-60.075, -19, -5),
    (-103.725, 5.812, -5),
    (-103.725, 61.862, -5),
    (-85.675, 80.912, -5),
    (-62.625, 84.722, -5),
    (-32.625, 84.722, -5),
    (32.625, 84.722, -5),
    (62.625, 84.722, -5),
    (85.675, 80.912, -5),
    (103.725, 61.862, -5),
    (103.725, 5.812, -5),
    (60.075, -19, -5),
]))
fillet.setExpression("Radius", "Params.fillet_radius")

doc.recompute()
